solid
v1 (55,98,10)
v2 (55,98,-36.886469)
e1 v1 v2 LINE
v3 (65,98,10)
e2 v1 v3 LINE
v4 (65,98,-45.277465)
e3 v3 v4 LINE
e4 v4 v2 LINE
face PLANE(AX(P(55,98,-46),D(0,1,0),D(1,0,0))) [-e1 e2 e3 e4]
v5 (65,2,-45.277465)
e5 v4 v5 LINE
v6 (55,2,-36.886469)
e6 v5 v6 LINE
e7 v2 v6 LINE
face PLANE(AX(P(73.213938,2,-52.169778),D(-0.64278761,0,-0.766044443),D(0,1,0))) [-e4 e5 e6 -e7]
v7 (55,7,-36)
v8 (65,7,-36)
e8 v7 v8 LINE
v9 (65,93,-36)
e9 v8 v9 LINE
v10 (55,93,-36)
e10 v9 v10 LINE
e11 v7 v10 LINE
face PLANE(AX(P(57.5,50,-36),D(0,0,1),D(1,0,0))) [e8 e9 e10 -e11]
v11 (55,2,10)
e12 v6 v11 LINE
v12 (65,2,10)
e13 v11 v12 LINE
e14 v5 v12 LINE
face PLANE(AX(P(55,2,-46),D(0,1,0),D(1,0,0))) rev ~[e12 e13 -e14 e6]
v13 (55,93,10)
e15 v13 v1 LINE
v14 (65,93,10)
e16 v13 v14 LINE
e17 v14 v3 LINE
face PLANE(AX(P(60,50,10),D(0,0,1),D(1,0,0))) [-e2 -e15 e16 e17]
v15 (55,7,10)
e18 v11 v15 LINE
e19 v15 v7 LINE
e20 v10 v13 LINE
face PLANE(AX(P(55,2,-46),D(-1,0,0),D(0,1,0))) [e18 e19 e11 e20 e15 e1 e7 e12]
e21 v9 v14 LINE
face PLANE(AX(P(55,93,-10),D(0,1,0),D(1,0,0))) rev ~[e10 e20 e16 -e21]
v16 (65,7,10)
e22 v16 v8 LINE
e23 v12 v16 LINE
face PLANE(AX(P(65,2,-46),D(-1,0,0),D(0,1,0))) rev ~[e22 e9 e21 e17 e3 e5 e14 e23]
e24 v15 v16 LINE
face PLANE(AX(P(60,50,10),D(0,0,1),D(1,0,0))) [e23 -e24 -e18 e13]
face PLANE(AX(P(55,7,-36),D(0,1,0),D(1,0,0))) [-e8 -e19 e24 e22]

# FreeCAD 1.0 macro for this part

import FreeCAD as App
import Part
import Sketcher

V = App.Vector
Q = App.Units.Quantity

doc = App.newDocument("Part")
body = doc.addObject("PartDesign::Body", "Body")

sketch1 = body.newObject("Sketcher::SketchObject", "Sketch")
sketch1.AttachmentSupport = (doc.getObject("XY_Plane"), [""])
sketch1.MapMode = "FlatFace"
sketch1.addGeometry(Part.LineSegment(V(0, 96, 0), V(0, 0, 0)), False)
sketch1.addGeometry(Part.LineSegment(V(0, 0, 0), V(5, 0, 0)), False)
sketch1.addGeometry(Part.LineSegment(V(5, 0, 0), V(5, 96, 0)), False)
sketch1.addGeometry(Part.LineSegment(V(5, 96, 0), V(0, 96, 0)), False)
sketch1.addConstraint(Sketcher.Constraint("Coincident", 0, 2, 1, 1))
sketch1.addConstraint(Sketcher.Constraint("Coincident", 1, 2, 2, 1))
sketch1.addConstraint(Sketcher.Constraint("Coincident", 2, 2, 3, 1))
sketch1.addConstraint(Sketcher.Constraint("Coincident", 3, 2, 0, 1))
sketch1.addConstraint(Sketcher.Constraint("Vertical", 0))
sketch1.addConstraint(Sketcher.Constraint("Horizontal", 1))
sketch1.addConstraint(Sketcher.Constraint("Vertical", 2))
sketch1.addConstraint(Sketcher.Constraint("Horizontal", 3))
sketch1.addConstraint(Sketcher.Constraint("Coincident", 0, 2, -1, 1))
sketch1.addConstraint(Sketcher.Constraint("DistanceX", 1, 1, 1, 2, Q("5 mm")))
sketch1.addConstraint(Sketcher.Constraint("DistanceY", 0, 2, 0, 1, Q("96 mm")))
pad1 = body.newObject("PartDesign::Pad", "Pad")
pad1.Profile = sketch1
pad1.Length = 60
body2 = doc.addObject("PartDesign::Body", "Body001")
doc.recompute()

body.Placement = App.Placement(V(70, 2, -56), App.Rotation(V(0, 1, 0), 310))
boolean = body2.newObject("PartDesign::Boolean", "Boolean")
boolean.Type = "Fuse"
boolean.addObjects([body])
body3 = doc.addObject("PartDesign::Body", "Body002")

sketch2 = body3.newObject("Sketcher::SketchObject", "Sketch001")
sketch2.AttachmentSupport = (doc.getObject("XY_Plane002"), [""])
sketch2.MapMode = "FlatFace"
sketch2.addGeometry(Part.LineSegment(V(0, 96, 0), V(0, 0, 0)), False)
sketch2.addGeometry(Part.LineSegment(V(0, 0, 0), V(5, 0, 0)), False)
sketch2.addGeometry(Part.LineSegment(V(5, 0, 0), V(5, 96, 0)), False)
sketch2.addGeometry(Part.LineSegment(V(5, 96, 0), V(0, 96, 0)), False)
sketch2.addConstraint(Sketcher.Constraint("Coincident", 0, 2, 1, 1))
sketch2.addConstraint(Sketcher.Constraint("Coincident", 1, 2, 2, 1))
sketch2.addConstraint(Sketcher.Constraint("Coincident", 2, 2, 3, 1))
sketch2.addConstraint(Sketcher.Constraint("Coincident", 3, 2, 0, 1))
sketch2.addConstraint(Sketcher.Constraint("Vertical", 0))
sketch2.addConstraint(Sketcher.Constraint("Horizontal", 1))
sketch2.addConstraint(Sketcher.Constraint("Vertical", 2))
sketch2.addConstraint(Sketcher.Constraint("Horizontal", 3))
sketch2.addConstraint(Sketcher.Constraint("Coincident", 0, 2, -1, 1))
sketch2.addConstraint(Sketcher.Constraint("DistanceX", 1, 1, 1, 2, Q("5 mm")))
sketch2.addConstraint(Sketcher.Constraint("DistanceY", 0, 2, 0, 1, Q("96 mm")))
pad2 = body3.newObject("PartDesign::Pad", "Pad001")
pad2.Profile = sketch2
pad2.Length = 60
body4 = doc.addObject("PartDesign::Body", "Body003")
doc.recompute()

body3.Placement = App.Placement(V(70, 2, -59), App.Rotation(V(0, 1, 0), 310))
boolean2 = body4.newObject("PartDesign::Boolean", "Boolean001")
boolean2.Type = "Fuse"
boolean2.addObjects([body3])
body5 = doc.addObject("PartDesign::Body", "Body004")

sketch3 = body5.newObject("Sketcher::SketchObject", "Sketch002")
sketch3.AttachmentSupport = (doc.getObject("XY_Plane004"), [""])
sketch3.MapMode = "FlatFace"
sketch3.AttachmentOffset = App.Placement(V(0, 0, -36), App.Rotation())
sketch3.addGeometry(Part.LineSegment(V(55, 93, 0), V(55, 7, 0)), False)
sketch3.addGeometry(Part.LineSegment(V(55, 7, 0), V(60, 7, 0)), False)
sketch3.addGeometry(Part.LineSegment(V(60, 7, 0), V(60, 93, 0)), False)
sketch3.addGeometry(Part.LineSegment(V(60, 93, 0), V(55, 93, 0)), False)
sketch3.addConstraint(Sketcher.Constraint("Coincident", 0, 2, 1, 1))
sketch3.addConstraint(Sketcher.Constraint("Coincident", 1, 2, 2, 1))
sketch3.addConstraint(Sketcher.Constraint("Coincident", 2, 2, 3, 1))
sketch3.addConstraint(Sketcher.Constraint("Coincident", 3, 2, 0, 1))
sketch3.addConstraint(Sketcher.Constraint("Vertical", 0))
sketch3.addConstraint(Sketcher.Constraint("Horizontal", 1))
sketch3.addConstraint(Sketcher.Constraint("Vertical", 2))
sketch3.addConstraint(Sketcher.Constraint("Horizontal", 3))
sketch3.addConstraint(Sketcher.Constraint("DistanceX", 1, 1, 1, 2, Q("5 mm")))
sketch3.addConstraint(Sketcher.Constraint("DistanceY", 0, 2, 0, 1, Q("86 mm")))
sketch3.addConstraint(Sketcher.Constraint("DistanceX", -1, 1, 0, 2, Q("55 mm")))
sketch3.addConstraint(Sketcher.Constraint("DistanceY", -1, 1, 0, 2, Q("7 mm")))
pad3 = body5.newObject("PartDesign::Pad", "Pad002")
pad3.Profile = sketch3
pad3.Length = 2
body6 = doc.addObject("PartDesign::Body", "Body005")

sketch4 = body6.newObject("Sketcher::SketchObject", "Sketch003")
sketch4.AttachmentSupport = (doc.getObject("XY_Plane005"), [""])
sketch4.MapMode = "FlatFace"
sketch4.AttachmentOffset = App.Placement(V(0, 0, -34), App.Rotation())
sketch4.addGeometry(Part.LineSegment(V(40, 93, 0), V(40, 7, 0)), False)
sketch4.addGeometry(Part.LineSegment(V(40, 7, 0), V(45, 7, 0)), False)
sketch4.addGeometry(Part.LineSegment(V(45, 7, 0), V(45, 93, 0)), False)
sketch4.addGeometry(Part.LineSegment(V(45, 93, 0), V(40, 93, 0)), False)
sketch4.addConstraint(Sketcher.Constraint("Coincident", 0, 2, 1, 1))
sketch4.addConstraint(Sketcher.Constraint("Coincident", 1, 2, 2, 1))
sketch4.addConstraint(Sketcher.Constraint("Coincident", 2, 2, 3, 1))
sketch4.addConstraint(Sketcher.Constraint("Coincident", 3, 2, 0, 1))
sketch4.addConstraint(Sketcher.Constraint("Vertical", 0))
sketch4.addConstraint(Sketcher.Constraint("Horizontal", 1))
sketch4.addConstraint(Sketcher.Constraint("Vertical", 2))
sketch4.addConstraint(Sketcher.Constraint("Horizontal", 3))
sketch4.addConstraint(Sketcher.Constraint("DistanceX", 1, 1, 1, 2, Q("5 mm")))
sketch4.addConstraint(Sketcher.Constraint("DistanceY", 0, 2, 0, 1, Q("86 mm")))
sketch4.addConstraint(Sketcher.Constraint("DistanceX", -1, 1, 0, 2, Q("40 mm")))
sketch4.addConstraint(Sketcher.Constraint("DistanceY", -1, 1, 0, 2, Q("7 mm")))
pad4 = body6.newObject("PartDesign::Pad", "Pad003")
pad4.Profile = sketch4
pad4.Length = 24
body7 = doc.addObject("PartDesign::Body", "Body006")

sketch5 = body7.newObject("Sketcher::SketchObject", "Sketch004")
sketch5.AttachmentSupport = (doc.getObject("XY_Plane006"), [""])
sketch5.MapMode = "FlatFace"
sketch5.AttachmentOffset = App.Placement(V(0, 0, -10), App.Rotation())
sketch5.addGeometry(Part.LineSegment(V(40, 93, 0), V(40, 7, 0)), False)
sketch5.addGeometry(Part.LineSegment(V(40, 7, 0), V(50, 7, 0)), False)
sketch5.addGeometry(Part.LineSegment(V(50, 7, 0), V(50, 93, 0)), False)
sketch5.addGeometry(Part.LineSegment(V(50, 93, 0), V(40, 93, 0)), False)
sketch5.addConstraint(Sketcher.Constraint("Coincident", 0, 2, 1, 1))
sketch5.addConstraint(Sketcher.Constraint("Coincident", 1, 2, 2, 1))
sketch5.addConstraint(Sketcher.Constraint("Coincident", 2, 2, 3, 1))
sketch5.addConstraint(Sketcher.Constraint("Coincident", 3, 2, 0, 1))
sketch5.addConstraint(Sketcher.Constraint("Vertical", 0))
sketch5.addConstraint(Sketcher.Constraint("Horizontal", 1))
sketch5.addConstraint(Sketcher.Constraint("Vertical", 2))
sketch5.addConstraint(Sketcher.Constraint("Horizontal", 3))
sketch5.addConstraint(Sketcher.Constraint("DistanceX", 1, 1, 1, 2, Q("10 mm")))
sketch5.addConstraint(Sketcher.Constraint("DistanceY", 0, 2, 0, 1, Q("86 mm")))
sketch5.addConstraint(Sketcher.Constraint("DistanceX", -1, 1, 0, 2, Q("40 mm")))
sketch5.addConstraint(Sketcher.Constraint("DistanceY", -1, 1, 0, 2, Q("7 mm")))
pad5 = body7.newObject("PartDesign::Pad", "Pad004")
pad5.Profile = sketch5
pad5.Length = 20
body8 = doc.addObject("PartDesign::Body", "Body007")

sketch6 = body8.newObject("Sketcher::SketchObject", "Sketch005")
sketch6.AttachmentSupport = (doc.getObject("XY_Plane007"), [""])
sketch6.MapMode = "FlatFace"
sketch6.AttachmentOffset = App.Placement(V(0, 0, -39), App.Rotation())
sketch6.addGeometry(Part.LineSegment(V(45, 93, 0), V(45, 7, 0)), False)
sketch6.addGeometry(Part.LineSegment(V(45, 7, 0), V(50, 7, 0)), False)
sketch6.addGeometry(Part.LineSegment(V(50, 7, 0), V(50, 93, 0)), False)
sketch6.addGeometry(Part.LineSegment(V(50, 93, 0), V(45, 93, 0)), False)
sketch6.addConstraint(Sketcher.Constraint("Coincident", 0, 2, 1, 1))
sketch6.addConstraint(Sketcher.Constraint("Coincident", 1, 2, 2, 1))
sketch6.addConstraint(Sketcher.Constraint("Coincident", 2, 2, 3, 1))
sketch6.addConstraint(Sketcher.Constraint("Coincident", 3, 2, 0, 1))
sketch6.addConstraint(Sketcher.Constraint("Vertical", 0))
sketch6.addConstraint(Sketcher.Constraint("Horizontal", 1))
sketch6.addConstraint(Sketcher.Constraint("Vertical", 2))
sketch6.addConstraint(Sketcher.Constraint("Horizontal", 3))
sketch6.addConstraint(Sketcher.Constraint("DistanceX", 1, 1, 1, 2, Q("5 mm")))
sketch6.addConstraint(Sketcher.Constraint("DistanceY", 0, 2, 0, 1, Q("86 mm")))
sketch6.addConstraint(Sketcher.Constraint("DistanceX", -1, 1, 0, 2, Q("45 mm")))
sketch6.addConstraint(Sketcher.Constraint("DistanceY", -1, 1, 0, 2, Q("7 mm")))
pad6 = body8.newObject("PartDesign::Pad", "Pad005")
pad6.Profile = sketch6
pad6.Length = 49
body9 = doc.addObject("PartDesign::Body", "Body008")

sketch7 = body9.newObject("Sketcher::SketchObject", "Sketch006")
sketch7.AttachmentSupport = (doc.getObject("XY_Plane008"), [""])
sketch7.MapMode = "FlatFace"
sketch7.AttachmentOffset = App.Placement(V(0, 0, -39), App.Rotation())
sketch7.addGeometry(Part.LineSegment(V(40, 98, 0), V(40, 2, 0)), False)
sketch7.addGeometry(Part.LineSegment(V(40, 2, 0), V(50, 2, 0)), False)
sketch7.addGeometry(Part.LineSegment(V(50, 2, 0), V(50, 98, 0)), False)
sketch7.addGeometry(Part.LineSegment(V(50, 98, 0), V(40, 98, 0)), False)
sketch7.addConstraint(Sketcher.Constraint("Coincident", 0, 2, 1, 1))
sketch7.addConstraint(Sketcher.Constraint("Coincident", 1, 2, 2, 1))
sketch7.addConstraint(Sketcher.Constraint("Coincident", 2, 2, 3, 1))
sketch7.addConstraint(Sketcher.Constraint("Coincident", 3, 2, 0, 1))
sketch7.addConstraint(Sketcher.Constraint("Vertical", 0))
sketch7.addConstraint(Sketcher.Constraint("Horizontal", 1))
sketch7.addConstraint(Sketcher.Constraint("Vertical", 2))
sketch7.addConstraint(Sketcher.Constraint("Horizontal", 3))
sketch7.addConstraint(Sketcher.Constraint("DistanceX", 1, 1, 1, 2, Q("10 mm")))
sketch7.addConstraint(Sketcher.Constraint("DistanceY", 0, 2, 0, 1, Q("96 mm")))
sketch7.addConstraint(Sketcher.Constraint("DistanceX", -1, 1, 0, 2, Q("40 mm")))
sketch7.addConstraint(Sketcher.Constraint("DistanceY", -1, 1, 0, 2, Q("2 mm")))
pad7 = body9.newObject("PartDesign::Pad", "Pad006")
pad7.Profile = sketch7
pad7.Length = 49
doc.recompute()

boolean3 = body9.newObject("PartDesign::Boolean", "Boolean002")
boolean3.Type = "Cut"
boolean3.addObjects([body8])
doc.recompute()

boolean4 = body9.newObject("PartDesign::Boolean", "Boolean003")
boolean4.Type = "Cut"
boolean4.addObjects([body7])
doc.recompute()

boolean5 = body9.newObject("PartDesign::Boolean", "Boolean004")
boolean5.Type = "Cut"
boolean5.addObjects([body6])
body10 = doc.addObject("PartDesign::Body", "Body009")
doc.recompute()

body9.Placement = App.Placement(V(15, 0, 0), App.Rotation(V(0, 0, 1), 0))
boolean6 = body10.newObject("PartDesign::Boolean", "Boolean005")
boolean6.Type = "Fuse"
boolean6.addObjects([body9])
doc.recompute()

boolean7 = body10.newObject("PartDesign::Boolean", "Boolean006")
boolean7.Type = "Cut"
boolean7.addObjects([body5])
body11 = doc.addObject("PartDesign::Body", "Body010")

sketch8 = body11.newObject("Sketcher::SketchObject", "Sketch007")
sketch8.AttachmentSupport = (doc.getObject("XY_Plane010"), [""])
sketch8.MapMode = "FlatFace"
sketch8.AttachmentOffset = App.Placement(V(0, 0, -46), App.Rotation())
sketch8.addGeometry(Part.LineSegment(V(55, 98, 0), V(55, 2, 0)), False)
sketch8.addGeometry(Part.LineSegment(V(55, 2, 0), V(65, 2, 0)), False)
sketch8.addGeometry(Part.LineSegment(V(65, 2, 0), V(65, 98, 0)), False)
sketch8.addGeometry(Part.LineSegment(V(65, 98, 0), V(55, 98, 0)), False)
sketch8.addConstraint(Sketcher.Constraint("Coincident", 0, 2, 1, 1))
sketch8.addConstraint(Sketcher.Constraint("Coincident", 1, 2, 2, 1))
sketch8.addConstraint(Sketcher.Constraint("Coincident", 2, 2, 3, 1))
sketch8.addConstraint(Sketcher.Constraint("Coincident", 3, 2, 0, 1))
sketch8.addConstraint(Sketcher.Constraint("Vertical", 0))
sketch8.addConstraint(Sketcher.Constraint("Horizontal", 1))
sketch8.addConstraint(Sketcher.Constraint("Vertical", 2))
sketch8.addConstraint(Sketcher.Constraint("Horizontal", 3))
sketch8.addConstraint(Sketcher.Constraint("DistanceX", 1, 1, 1, 2, Q("10 mm")))
sketch8.addConstraint(Sketcher.Constraint("DistanceY", 0, 2, 0, 1, Q("96 mm")))
sketch8.addConstraint(Sketcher.Constraint("DistanceX", -1, 1, 0, 2, Q("55 mm")))
sketch8.addConstraint(Sketcher.Constraint("DistanceY", -1, 1, 0, 2, Q("2 mm")))
pad8 = body11.newObject("PartDesign::Pad", "Pad007")
pad8.Profile = sketch8
pad8.Length = 10
doc.recompute()

boolean8 = body11.newObject("PartDesign::Boolean", "Boolean007")
boolean8.Type = "Fuse"
boolean8.addObjects([body10])
doc.recompute()

boolean9 = body11.newObject("PartDesign::Boolean", "Boolean008")
boolean9.Type = "Cut"
boolean9.addObjects([body4])
doc.recompute()

boolean10 = body11.newObject("PartDesign::Boolean", "Boolean009")
boolean10.Type = "Cut"
boolean10.addObjects([body2])

doc.recompute()
